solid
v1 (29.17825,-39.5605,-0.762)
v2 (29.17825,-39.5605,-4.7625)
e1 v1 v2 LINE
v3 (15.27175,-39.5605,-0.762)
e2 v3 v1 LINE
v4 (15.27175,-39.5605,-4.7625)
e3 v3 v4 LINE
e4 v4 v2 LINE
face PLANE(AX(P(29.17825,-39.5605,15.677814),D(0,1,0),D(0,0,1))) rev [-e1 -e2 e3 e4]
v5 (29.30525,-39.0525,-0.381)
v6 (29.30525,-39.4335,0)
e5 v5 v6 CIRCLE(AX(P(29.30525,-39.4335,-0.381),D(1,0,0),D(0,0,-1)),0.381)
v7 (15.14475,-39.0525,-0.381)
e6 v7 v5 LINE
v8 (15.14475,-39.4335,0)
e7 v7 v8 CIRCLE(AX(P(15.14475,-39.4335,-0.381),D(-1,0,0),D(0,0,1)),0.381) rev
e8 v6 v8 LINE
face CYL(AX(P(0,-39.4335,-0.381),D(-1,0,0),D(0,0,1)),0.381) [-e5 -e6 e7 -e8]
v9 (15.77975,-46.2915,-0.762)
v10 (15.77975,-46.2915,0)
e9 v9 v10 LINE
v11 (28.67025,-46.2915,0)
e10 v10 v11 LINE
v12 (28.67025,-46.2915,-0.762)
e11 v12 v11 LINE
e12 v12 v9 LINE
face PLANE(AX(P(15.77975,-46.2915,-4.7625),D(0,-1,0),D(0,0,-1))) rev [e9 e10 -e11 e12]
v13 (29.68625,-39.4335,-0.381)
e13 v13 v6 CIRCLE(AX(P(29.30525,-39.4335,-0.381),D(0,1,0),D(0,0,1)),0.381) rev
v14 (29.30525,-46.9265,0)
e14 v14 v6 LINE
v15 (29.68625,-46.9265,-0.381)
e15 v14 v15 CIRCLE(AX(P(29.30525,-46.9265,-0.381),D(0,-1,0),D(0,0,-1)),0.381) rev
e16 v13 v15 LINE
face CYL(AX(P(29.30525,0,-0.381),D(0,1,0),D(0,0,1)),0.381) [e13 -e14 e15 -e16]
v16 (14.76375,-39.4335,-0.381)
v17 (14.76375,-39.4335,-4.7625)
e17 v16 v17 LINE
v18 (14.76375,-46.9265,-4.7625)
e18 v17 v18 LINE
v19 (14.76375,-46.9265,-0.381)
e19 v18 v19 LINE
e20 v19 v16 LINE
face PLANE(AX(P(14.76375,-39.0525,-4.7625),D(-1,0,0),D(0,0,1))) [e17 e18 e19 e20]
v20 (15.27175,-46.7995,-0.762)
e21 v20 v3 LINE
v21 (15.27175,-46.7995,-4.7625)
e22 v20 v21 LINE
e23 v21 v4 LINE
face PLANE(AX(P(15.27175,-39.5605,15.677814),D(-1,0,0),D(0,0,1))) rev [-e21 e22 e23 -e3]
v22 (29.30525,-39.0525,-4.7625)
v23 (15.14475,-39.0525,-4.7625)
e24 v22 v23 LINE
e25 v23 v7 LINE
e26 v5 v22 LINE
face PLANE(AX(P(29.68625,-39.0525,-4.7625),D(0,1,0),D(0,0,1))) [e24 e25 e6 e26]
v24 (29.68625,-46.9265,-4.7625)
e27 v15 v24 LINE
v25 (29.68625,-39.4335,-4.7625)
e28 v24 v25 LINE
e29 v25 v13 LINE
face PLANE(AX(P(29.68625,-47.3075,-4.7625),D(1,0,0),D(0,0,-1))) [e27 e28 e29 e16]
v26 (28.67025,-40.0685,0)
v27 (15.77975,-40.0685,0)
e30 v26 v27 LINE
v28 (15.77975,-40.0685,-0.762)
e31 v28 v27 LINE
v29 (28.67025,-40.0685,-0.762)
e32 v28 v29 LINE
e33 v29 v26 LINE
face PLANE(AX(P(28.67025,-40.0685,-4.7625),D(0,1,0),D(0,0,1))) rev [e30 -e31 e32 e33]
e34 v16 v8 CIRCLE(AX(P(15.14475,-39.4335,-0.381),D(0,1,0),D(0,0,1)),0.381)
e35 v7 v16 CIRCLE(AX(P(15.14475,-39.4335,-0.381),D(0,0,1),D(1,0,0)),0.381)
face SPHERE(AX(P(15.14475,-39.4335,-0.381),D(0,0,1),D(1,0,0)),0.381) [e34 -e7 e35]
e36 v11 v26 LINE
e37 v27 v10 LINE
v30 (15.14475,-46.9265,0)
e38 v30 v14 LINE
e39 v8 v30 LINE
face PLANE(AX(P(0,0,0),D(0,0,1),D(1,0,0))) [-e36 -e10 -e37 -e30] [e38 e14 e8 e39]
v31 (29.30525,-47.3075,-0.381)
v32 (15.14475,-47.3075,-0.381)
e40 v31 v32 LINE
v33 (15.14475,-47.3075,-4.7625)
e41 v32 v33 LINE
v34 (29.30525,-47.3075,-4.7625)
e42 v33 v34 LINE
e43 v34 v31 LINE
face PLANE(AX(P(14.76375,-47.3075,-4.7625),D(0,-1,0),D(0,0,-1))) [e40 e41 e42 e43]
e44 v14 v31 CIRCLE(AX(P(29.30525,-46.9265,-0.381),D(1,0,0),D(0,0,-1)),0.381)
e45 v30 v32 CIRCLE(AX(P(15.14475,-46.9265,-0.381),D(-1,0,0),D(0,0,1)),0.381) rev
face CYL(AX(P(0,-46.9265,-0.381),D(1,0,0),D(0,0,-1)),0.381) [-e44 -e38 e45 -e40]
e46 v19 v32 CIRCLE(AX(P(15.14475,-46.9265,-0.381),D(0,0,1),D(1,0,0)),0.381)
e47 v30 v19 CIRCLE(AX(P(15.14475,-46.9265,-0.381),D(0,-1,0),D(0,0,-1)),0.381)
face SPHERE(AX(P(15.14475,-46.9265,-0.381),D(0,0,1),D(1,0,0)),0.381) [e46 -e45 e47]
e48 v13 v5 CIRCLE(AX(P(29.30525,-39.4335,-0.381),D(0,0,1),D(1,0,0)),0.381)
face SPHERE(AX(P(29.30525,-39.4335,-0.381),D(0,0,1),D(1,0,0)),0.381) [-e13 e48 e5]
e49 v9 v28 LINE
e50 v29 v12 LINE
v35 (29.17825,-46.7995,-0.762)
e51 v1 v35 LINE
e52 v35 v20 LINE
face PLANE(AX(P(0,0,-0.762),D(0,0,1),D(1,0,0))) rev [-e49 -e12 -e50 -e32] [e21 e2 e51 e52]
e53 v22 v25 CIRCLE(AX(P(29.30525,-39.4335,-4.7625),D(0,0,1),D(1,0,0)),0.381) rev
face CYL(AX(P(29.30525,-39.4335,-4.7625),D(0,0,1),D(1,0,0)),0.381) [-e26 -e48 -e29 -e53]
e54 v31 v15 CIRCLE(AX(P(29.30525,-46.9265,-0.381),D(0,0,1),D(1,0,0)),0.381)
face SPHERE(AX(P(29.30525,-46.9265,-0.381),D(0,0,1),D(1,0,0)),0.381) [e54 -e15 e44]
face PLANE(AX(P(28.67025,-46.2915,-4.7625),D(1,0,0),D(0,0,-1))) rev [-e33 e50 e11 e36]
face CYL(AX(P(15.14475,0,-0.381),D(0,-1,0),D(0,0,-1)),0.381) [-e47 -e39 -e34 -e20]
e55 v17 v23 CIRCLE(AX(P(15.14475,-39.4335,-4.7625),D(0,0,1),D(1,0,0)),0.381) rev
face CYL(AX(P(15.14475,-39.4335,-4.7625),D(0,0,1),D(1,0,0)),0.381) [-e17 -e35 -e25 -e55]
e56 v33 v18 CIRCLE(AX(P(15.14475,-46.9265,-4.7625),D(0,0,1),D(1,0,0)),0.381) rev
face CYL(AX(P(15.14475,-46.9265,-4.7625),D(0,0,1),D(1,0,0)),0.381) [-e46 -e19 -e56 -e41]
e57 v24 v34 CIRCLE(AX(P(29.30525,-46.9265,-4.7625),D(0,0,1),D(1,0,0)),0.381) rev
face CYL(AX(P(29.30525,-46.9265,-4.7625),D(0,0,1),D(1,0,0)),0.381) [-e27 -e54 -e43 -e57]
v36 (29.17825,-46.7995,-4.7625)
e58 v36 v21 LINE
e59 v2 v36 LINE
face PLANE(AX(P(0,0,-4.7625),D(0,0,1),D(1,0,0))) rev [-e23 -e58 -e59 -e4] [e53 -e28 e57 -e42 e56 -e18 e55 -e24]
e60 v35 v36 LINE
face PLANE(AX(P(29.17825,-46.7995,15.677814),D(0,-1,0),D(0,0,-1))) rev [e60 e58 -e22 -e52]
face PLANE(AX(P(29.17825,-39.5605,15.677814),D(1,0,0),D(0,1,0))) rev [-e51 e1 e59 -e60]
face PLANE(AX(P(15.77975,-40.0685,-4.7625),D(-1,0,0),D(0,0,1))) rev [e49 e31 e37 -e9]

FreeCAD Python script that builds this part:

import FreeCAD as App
import Part
import Sketcher
from FreeCAD import Vector
Q = App.Units.Quantity


def edges_at(feature, points):
    """Names of the edges that pass closest to the given points."""
    edges = feature.Shape.Edges
    near = lambda p: min(range(len(edges)), key=lambda i: edges[i].distToShape(Part.Vertex(*p))[0])
    return sorted({f"Edge{near(p) + 1}" for p in points})


def add_polygon(sketch, points):
    """Adds a closed chain of lines whose ends are joined by coincident constraints."""
    first, n = sketch.GeometryCount, len(points)
    for a, b in zip(points, points[1:] + points[:1]):
        sketch.addGeometry(Part.LineSegment(App.Vector(*a, 0), App.Vector(*b, 0)), False)
    for i in range(n):
        sketch.addConstraint(Sketcher.Constraint("Coincident", first + i, 2, first + (i + 1) % n, 1))

doc = App.newDocument("Part")
body = doc.addObject("PartDesign::Body", "Body")

# Sketch on XY plane
sketch1 = body.newObject("Sketcher::SketchObject", "Sketch")
sketch1.AttachmentSupport = (doc.getObject("XY_Plane"), [""])
sketch1.MapMode = "FlatFace"
add_polygon(sketch1, [(14.76375, -39.0525), (14.76375, -47.3075), (29.68625, -47.3075), (29.68625, -39.0525)])  # lines 0-3
add_polygon(sketch1, [(28.67025, -46.2915), (15.77975, -46.2915), (15.77975, -40.0685), (28.67025, -40.0685)])  # lines 4-7
sketch1.addConstraint(Sketcher.Constraint("Vertical", 0))
sketch1.addConstraint(Sketcher.Constraint("Horizontal", 1))
sketch1.addConstraint(Sketcher.Constraint("Vertical", 2))
sketch1.addConstraint(Sketcher.Constraint("Horizontal", 3))
sketch1.addConstraint(Sketcher.Constraint("Horizontal", 4))
sketch1.addConstraint(Sketcher.Constraint("Vertical", 5))
sketch1.addConstraint(Sketcher.Constraint("Horizontal", 6))
sketch1.addConstraint(Sketcher.Constraint("Vertical", 7))
sketch1.addConstraint(Sketcher.Constraint("DistanceY", 0, 2, 0, 1, Q("0.325 in")))
sketch1.addConstraint(Sketcher.Constraint("DistanceY", 5, 1, 5, 2, Q("0.245 in")))
sketch1.addConstraint(Sketcher.Constraint("DistanceX", 0, 2, 4, 2, Q("0.04 in")))
sketch1.addConstraint(Sketcher.Constraint("DistanceY", 0, 2, 4, 2, Q("0.04 in")))
sketch1.addConstraint(Sketcher.Constraint("DistanceX", 6, 2, 2, 2, Q("0.04 in")))
sketch1.addConstraint(Sketcher.Constraint("DistanceX", 1, 1, 1, 2, Q("0.5875 in")))
sketch1.addConstraint(Sketcher.Constraint("DistanceY", 0, 2, -1, 1, Q("1.8625 in")))
sketch1.addConstraint(Sketcher.Constraint("DistanceX", -1, 1, 0, 2, Q("14.76375 mm")))
pad1 = body.newObject("PartDesign::Pad", "Pad")
pad1.Profile = sketch1
pad1.Length = Q("0.1875 in")
pad1.Reversed = True

# Sketch on XY plane
sketch2 = body.newObject("Sketcher::SketchObject", "Sketch001")
sketch2.AttachmentSupport = (doc.getObject("XY_Plane"), [""])
sketch2.MapMode = "FlatFace"
sketch2.AttachmentOffset = App.Placement(Vector(0, 0, -0.1875 * 25.4), App.Rotation())
add_polygon(sketch2, [(29.17825, -39.5605), (29.17825, -46.7995), (15.27175, -46.7995), (15.27175, -39.5605)])  # lines 0-3
sketch2.addConstraint(Sketcher.Constraint("Vertical", 0))
sketch2.addConstraint(Sketcher.Constraint("Horizontal", 1))
sketch2.addConstraint(Sketcher.Constraint("Vertical", 2))
sketch2.addConstraint(Sketcher.Constraint("Horizontal", 3))
sketch2.addConstraint(Sketcher.Constraint("DistanceY", 0, 2, 0, 1, Q("0.285 in")))
sketch2.addConstraint(Sketcher.Constraint("DistanceX", 1, 2, 1, 1, Q("0.5475 in")))
sketch2.addConstraint(Sketcher.Constraint("DistanceY", 0, 2, -1, 1, Q("1.8425 in")))
sketch2.addConstraint(Sketcher.Constraint("DistanceX", -1, 1, 0, 2, Q("29.17825 mm")))
pocket1 = body.newObject("PartDesign::Pocket", "Pocket")
pocket1.Profile = sketch2
pocket1.Length = Q("0.1575 in")
pocket1.Reversed = True
doc.recompute()

fillet = body.newObject("PartDesign::Fillet", "Fillet")
fillet.Base = (pocket1, edges_at(pocket1, [
    (22.225, -47.307, 0),
    (14.764, -43.18, 0),
    (22.225, -39.053, 0),
    (29.686, -43.18, 0),
    (29.686, -47.307, -2.381),
    (14.764, -47.307, -2.381),
    (14.764, -39.053, -2.381),
    (29.686, -39.053, -2.381),
]))
fillet.Radius = Q("0.015 in")

doc.recompute()
